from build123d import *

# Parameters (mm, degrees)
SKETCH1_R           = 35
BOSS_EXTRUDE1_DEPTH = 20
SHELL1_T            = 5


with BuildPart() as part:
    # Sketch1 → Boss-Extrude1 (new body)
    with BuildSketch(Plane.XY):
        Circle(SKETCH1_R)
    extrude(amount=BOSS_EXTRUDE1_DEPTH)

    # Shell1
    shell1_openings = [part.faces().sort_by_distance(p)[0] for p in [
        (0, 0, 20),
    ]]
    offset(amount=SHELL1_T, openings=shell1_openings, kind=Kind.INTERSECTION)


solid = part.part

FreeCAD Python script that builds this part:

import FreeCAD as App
import Part
import Sketcher
from FreeCAD import Vector


def faces_at(feature, points):
    """Names of the faces that lie closest to the given points."""
    faces = feature.Shape.Faces
    near = lambda p: min(range(len(faces)), key=lambda i: faces[i].distToShape(Part.Vertex(*p))[0])
    return sorted({f"Face{near(p) + 1}" for p in points})

doc = App.newDocument("Part")
body = doc.addObject("PartDesign::Body", "Body")

# Sketch on XY plane
sketch1 = body.newObject("Sketcher::SketchObject", "Sketch")
sketch1.AttachmentSupport = (doc.getObject("XY_Plane"), [""])
sketch1.MapMode = "FlatFace"
sketch1.addGeometry(Part.Circle(Vector(0, 0, 0), Vector(0, 0, 1), 35), False)
sketch1.addConstraint([
    Sketcher.Constraint("Coincident", 0, 3, -1, 1),
    Sketcher.Constraint("Diameter", 0, 70.0),
])
pad1 = body.newObject("PartDesign::Pad", "Pad")
pad1.Profile = sketch1
pad1.Length = 20
doc.recompute()

thickness = body.newObject("PartDesign::Thickness", "Thickness")
thickness.Base = (pad1, faces_at(pad1, [(0, 0, 20)]))
thickness.Value = 5
thickness.Reversed = False
thickness.Join = "Intersection"

doc.recompute()
